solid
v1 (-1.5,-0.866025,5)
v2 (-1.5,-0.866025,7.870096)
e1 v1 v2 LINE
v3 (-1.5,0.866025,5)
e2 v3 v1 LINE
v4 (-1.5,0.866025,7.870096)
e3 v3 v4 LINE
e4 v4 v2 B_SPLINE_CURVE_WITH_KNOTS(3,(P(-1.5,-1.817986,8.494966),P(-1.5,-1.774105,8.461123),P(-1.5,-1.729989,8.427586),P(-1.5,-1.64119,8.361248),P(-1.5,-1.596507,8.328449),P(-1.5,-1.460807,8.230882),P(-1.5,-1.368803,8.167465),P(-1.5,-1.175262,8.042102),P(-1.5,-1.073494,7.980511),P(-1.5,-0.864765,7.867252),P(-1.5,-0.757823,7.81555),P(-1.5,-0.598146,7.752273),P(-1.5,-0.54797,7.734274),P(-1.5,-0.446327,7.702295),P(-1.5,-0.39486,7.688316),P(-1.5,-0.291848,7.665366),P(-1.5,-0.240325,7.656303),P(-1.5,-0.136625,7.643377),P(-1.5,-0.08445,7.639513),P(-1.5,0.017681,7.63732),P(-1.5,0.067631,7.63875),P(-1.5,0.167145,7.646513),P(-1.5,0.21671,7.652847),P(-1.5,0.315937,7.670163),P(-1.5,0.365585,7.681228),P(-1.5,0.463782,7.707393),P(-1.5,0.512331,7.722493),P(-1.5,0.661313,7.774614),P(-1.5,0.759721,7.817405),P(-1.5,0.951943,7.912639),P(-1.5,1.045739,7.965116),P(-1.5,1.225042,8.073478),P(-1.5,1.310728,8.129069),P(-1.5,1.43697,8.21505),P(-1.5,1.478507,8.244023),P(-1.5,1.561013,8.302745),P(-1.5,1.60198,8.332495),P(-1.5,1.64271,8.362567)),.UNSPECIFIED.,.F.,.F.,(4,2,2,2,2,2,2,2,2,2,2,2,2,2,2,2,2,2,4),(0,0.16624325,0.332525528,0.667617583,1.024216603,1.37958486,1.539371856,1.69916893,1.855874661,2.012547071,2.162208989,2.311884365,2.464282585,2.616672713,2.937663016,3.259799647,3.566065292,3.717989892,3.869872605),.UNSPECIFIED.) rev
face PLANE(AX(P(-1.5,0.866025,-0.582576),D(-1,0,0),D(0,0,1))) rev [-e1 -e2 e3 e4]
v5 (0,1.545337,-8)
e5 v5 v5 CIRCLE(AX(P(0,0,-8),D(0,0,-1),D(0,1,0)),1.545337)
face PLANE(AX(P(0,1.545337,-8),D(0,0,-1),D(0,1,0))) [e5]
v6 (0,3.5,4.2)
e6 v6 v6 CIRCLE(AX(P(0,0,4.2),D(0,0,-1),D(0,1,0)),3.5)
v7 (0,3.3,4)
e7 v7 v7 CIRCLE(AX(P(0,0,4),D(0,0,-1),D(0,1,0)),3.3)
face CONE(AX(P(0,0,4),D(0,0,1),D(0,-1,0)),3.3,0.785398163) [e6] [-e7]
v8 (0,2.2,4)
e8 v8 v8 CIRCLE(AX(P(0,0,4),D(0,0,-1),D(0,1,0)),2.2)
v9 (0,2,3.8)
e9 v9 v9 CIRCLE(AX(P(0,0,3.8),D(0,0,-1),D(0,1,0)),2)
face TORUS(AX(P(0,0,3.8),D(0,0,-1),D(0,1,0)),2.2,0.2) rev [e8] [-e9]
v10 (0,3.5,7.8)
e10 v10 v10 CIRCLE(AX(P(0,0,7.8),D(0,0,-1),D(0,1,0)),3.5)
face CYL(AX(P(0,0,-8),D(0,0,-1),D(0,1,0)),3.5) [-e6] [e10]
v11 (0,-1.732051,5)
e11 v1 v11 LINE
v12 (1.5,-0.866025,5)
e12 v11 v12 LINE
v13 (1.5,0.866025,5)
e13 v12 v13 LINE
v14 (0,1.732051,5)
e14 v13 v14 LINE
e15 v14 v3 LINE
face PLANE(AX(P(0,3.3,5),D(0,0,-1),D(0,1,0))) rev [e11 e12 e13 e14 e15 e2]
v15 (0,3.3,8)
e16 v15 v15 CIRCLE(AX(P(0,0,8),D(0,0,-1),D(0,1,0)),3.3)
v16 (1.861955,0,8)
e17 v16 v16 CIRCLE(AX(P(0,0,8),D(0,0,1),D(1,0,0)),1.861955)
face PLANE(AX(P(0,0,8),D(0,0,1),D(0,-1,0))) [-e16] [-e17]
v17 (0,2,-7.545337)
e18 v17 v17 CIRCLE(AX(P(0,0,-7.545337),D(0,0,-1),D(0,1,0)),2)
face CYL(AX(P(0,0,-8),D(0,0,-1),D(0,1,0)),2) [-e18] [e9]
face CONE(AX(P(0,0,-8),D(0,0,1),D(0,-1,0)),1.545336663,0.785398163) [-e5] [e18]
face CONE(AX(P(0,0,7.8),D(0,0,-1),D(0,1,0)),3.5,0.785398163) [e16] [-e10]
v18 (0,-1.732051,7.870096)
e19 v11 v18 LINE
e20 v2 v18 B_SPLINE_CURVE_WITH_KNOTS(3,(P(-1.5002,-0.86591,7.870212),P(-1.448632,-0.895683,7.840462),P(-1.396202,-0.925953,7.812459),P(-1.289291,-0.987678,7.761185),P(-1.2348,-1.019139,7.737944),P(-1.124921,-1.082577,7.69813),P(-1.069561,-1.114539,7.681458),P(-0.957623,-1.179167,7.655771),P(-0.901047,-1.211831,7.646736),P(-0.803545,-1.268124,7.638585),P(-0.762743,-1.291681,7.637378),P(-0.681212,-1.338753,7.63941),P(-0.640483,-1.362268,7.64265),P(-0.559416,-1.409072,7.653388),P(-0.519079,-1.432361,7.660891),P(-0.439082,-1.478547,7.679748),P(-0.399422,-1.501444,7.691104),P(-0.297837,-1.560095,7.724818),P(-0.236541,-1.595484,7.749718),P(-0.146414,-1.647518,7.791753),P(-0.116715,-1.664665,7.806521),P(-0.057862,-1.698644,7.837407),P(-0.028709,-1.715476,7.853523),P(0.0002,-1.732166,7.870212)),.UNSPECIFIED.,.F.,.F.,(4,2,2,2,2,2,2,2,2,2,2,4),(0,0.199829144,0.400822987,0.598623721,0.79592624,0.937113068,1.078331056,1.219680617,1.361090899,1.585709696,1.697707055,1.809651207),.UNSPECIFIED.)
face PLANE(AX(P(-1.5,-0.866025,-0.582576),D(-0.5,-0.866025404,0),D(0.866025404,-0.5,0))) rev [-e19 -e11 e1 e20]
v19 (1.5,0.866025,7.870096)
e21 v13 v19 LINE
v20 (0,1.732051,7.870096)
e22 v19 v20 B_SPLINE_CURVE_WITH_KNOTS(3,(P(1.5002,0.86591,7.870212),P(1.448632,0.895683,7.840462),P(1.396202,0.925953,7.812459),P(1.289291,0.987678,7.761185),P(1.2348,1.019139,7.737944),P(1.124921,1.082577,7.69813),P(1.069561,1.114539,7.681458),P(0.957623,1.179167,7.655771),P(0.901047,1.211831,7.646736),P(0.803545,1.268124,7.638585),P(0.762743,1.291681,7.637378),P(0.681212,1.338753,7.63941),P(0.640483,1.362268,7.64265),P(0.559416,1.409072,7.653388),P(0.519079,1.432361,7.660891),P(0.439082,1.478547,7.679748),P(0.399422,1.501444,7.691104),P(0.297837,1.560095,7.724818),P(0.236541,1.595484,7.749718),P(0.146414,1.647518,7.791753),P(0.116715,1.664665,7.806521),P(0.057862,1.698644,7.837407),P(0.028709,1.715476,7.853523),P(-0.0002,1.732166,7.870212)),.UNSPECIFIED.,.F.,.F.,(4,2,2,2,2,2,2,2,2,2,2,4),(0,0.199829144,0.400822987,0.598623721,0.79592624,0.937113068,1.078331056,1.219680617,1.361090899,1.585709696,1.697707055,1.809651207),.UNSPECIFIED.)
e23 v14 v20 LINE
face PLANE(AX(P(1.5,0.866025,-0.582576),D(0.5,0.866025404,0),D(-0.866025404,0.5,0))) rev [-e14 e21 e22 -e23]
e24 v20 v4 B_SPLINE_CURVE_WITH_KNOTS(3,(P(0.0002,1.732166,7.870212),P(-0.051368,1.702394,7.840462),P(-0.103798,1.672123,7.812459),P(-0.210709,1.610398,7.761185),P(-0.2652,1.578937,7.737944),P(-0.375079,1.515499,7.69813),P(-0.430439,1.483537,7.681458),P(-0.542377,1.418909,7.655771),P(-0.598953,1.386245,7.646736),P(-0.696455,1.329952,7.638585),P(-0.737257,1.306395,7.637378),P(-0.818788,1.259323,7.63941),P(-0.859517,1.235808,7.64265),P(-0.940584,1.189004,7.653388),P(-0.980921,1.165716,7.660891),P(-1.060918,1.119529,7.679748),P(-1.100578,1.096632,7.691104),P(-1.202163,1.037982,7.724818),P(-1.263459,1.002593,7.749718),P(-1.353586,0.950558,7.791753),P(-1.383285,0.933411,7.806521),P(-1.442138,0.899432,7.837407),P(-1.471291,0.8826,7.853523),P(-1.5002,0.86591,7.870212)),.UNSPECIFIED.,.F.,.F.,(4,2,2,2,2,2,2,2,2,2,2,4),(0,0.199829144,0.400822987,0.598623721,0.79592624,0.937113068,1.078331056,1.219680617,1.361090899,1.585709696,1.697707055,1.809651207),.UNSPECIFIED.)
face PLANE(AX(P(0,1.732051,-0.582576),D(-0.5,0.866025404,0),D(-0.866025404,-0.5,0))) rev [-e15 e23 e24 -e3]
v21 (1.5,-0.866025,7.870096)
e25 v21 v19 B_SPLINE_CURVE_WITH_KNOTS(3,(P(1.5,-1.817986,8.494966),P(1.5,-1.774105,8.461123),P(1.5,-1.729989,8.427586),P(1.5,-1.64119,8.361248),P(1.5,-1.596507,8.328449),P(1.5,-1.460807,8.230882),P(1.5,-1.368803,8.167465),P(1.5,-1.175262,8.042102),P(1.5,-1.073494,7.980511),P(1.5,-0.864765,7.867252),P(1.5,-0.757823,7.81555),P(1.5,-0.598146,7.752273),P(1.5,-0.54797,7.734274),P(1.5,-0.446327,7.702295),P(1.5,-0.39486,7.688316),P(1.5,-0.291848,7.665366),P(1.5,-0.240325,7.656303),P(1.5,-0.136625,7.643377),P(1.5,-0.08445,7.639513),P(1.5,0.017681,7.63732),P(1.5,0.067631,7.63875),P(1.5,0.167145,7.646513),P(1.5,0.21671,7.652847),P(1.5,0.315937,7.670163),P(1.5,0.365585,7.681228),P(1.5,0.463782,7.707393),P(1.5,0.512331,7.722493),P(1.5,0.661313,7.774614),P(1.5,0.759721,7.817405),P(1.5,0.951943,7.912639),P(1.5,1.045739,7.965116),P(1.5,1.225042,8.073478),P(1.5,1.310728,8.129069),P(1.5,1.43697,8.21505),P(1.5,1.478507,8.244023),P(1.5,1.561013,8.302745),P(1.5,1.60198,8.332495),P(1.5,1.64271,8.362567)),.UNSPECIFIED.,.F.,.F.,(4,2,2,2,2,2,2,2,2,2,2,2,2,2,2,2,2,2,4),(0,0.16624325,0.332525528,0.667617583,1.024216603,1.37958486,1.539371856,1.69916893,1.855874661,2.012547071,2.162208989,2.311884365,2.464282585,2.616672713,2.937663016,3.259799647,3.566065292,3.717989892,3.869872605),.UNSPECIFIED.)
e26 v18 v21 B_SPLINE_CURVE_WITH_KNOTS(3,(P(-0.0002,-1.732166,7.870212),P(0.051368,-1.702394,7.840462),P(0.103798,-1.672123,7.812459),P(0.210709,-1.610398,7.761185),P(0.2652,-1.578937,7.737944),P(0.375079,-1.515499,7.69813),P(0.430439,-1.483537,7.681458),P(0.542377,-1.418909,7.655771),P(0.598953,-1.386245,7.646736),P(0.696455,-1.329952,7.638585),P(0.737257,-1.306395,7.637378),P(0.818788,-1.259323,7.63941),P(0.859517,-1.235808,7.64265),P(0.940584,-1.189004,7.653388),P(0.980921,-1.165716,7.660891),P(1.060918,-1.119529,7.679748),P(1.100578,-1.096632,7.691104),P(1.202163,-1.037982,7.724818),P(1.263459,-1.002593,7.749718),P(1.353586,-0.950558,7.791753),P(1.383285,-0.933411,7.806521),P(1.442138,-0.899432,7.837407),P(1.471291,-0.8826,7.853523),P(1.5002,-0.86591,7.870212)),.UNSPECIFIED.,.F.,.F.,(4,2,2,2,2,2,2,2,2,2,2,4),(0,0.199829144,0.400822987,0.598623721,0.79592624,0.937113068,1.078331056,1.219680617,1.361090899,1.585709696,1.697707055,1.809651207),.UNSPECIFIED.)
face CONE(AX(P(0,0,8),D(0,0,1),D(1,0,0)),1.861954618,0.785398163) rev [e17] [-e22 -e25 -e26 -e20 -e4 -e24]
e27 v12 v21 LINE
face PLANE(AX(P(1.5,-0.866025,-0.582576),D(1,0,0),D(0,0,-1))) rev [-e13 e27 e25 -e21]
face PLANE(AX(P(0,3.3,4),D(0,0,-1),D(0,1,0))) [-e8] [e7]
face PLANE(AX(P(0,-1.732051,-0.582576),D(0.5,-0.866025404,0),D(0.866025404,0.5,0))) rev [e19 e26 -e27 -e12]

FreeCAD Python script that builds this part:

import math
import FreeCAD as App
import Part
import Sketcher
from FreeCAD import Vector
Q = App.Units.Quantity


def faces_at(feature, points):
    """Names of the faces that lie closest to the given points."""
    faces = feature.Shape.Faces
    near = lambda p: min(range(len(faces)), key=lambda i: faces[i].distToShape(Part.Vertex(*p))[0])
    return sorted({f"Face{near(p) + 1}" for p in points})


def add_polygon(sketch, points):
    """Adds a closed chain of lines whose ends are joined by coincident constraints."""
    first, n = sketch.GeometryCount, len(points)
    for a, b in zip(points, points[1:] + points[:1]):
        sketch.addGeometry(Part.LineSegment(App.Vector(*a, 0), App.Vector(*b, 0)), False)
    for i in range(n):
        sketch.addConstraint(Sketcher.Constraint("Coincident", first + i, 2, first + (i + 1) % n, 1))

doc = App.newDocument("Part")
body = doc.addObject("PartDesign::Body", "Body")

# Sketch on YZ plane
sketch1 = body.newObject("Sketcher::SketchObject", "Sketch")
sketch1.AttachmentSupport = (doc.getObject("YZ_Plane"), [""])
sketch1.MapMode = "FlatFace"
sketch1.addGeometry([
    Part.LineSegment(Vector(3.3, 8, 0), Vector(0, 8, 0)),  # 0
    Part.LineSegment(Vector(0, 8, 0), Vector(0, -8, 0)),  # 1
    Part.LineSegment(Vector(0, -8, 0), Vector(1.55, -8, 0)),  # 2
    Part.LineSegment(Vector(1.55, -8, 0), Vector(2, -7.55, 0)),  # 3
    Part.LineSegment(Vector(2, -7.55, 0), Vector(2, 3.8, 0)),  # 4
    Part.ArcOfCircle(Part.Circle(Vector(2.2, 3.8, 0), Vector(0, 0, 1), 0.2), math.radians(90), math.radians(180)),  # 5
    Part.LineSegment(Vector(2.2, 4, 0), Vector(3.3, 4, 0)),  # 6
    Part.LineSegment(Vector(3.3, 4, 0), Vector(3.5, 4.2, 0)),  # 7
    Part.LineSegment(Vector(3.5, 4.2, 0), Vector(3.5, 7.8, 0)),  # 8
    Part.LineSegment(Vector(3.5, 7.8, 0), Vector(3.3, 8, 0)),  # 9
], False)
sketch1.addConstraint([
    Sketcher.Constraint("Coincident", 0, 2, 1, 1),
    Sketcher.Constraint("Coincident", 1, 2, 2, 1),
    Sketcher.Constraint("Coincident", 2, 2, 3, 1),
    Sketcher.Constraint("Coincident", 3, 2, 4, 1),
    Sketcher.Constraint("Tangent", 4, 2, 5, 2),
    Sketcher.Constraint("Tangent", 5, 1, 6, 1),
    Sketcher.Constraint("Coincident", 6, 2, 7, 1),
    Sketcher.Constraint("Coincident", 7, 2, 8, 1),
    Sketcher.Constraint("Coincident", 8, 2, 9, 1),
    Sketcher.Constraint("Coincident", 9, 2, 0, 1),
    Sketcher.Constraint("Horizontal", 0),
    Sketcher.Constraint("Vertical", 1),
    Sketcher.Constraint("Horizontal", 2),
    Sketcher.Constraint("Vertical", 4),
    Sketcher.Constraint("Horizontal", 6),
    Sketcher.Constraint("Vertical", 8),
    Sketcher.Constraint("Symmetric", 0, 2, 1, 2, -1, 1),
    Sketcher.Constraint("Parallel", 3, 7),
    Sketcher.Constraint("Perpendicular", 7, 9),
    Sketcher.Constraint("Vertical", 6, 2, 9, 2),
    Sketcher.Constraint("Equal", 7, 9),
    Sketcher.Constraint("Radius", 5, Q("0.2 mm")),
    Sketcher.Constraint("DistanceY", 1, 2, 1, 1, Q("16 mm")),
    Sketcher.Constraint("DistanceX", 0, 2, 0, 1, Q("3.3 mm")),
    Sketcher.Constraint("DistanceX", 6, 1, 6, 2, Q("1.1 mm")),
    Sketcher.Constraint("DistanceY", 8, 1, 8, 2, Q("3.6 mm")),
    Sketcher.Constraint("DistanceY", -1, 1, 5, 1, Q("4 mm")),
    Sketcher.Constraint("Distance", 3, Q("0.642991 mm")),
])
revolution = body.newObject("PartDesign::Revolution", "Revolution")
revolution.Profile = sketch1
revolution.ReferenceAxis = (sketch1, ["V_Axis"])
revolution.Angle = 360

# Sketch on XY plane
sketch2 = body.newObject("Sketcher::SketchObject", "Sketch001")
sketch2.AttachmentSupport = (doc.getObject("XY_Plane"), [""])
sketch2.MapMode = "FlatFace"
sketch2.AttachmentOffset = App.Placement(Vector(0, 0, 8), App.Rotation())
add_polygon(sketch2, [(1.5, -0.9), (1.5, 0.9), (0, 1.7), (-1.5, 0.9), (-1.5, -0.9), (0, -1.7)])  # lines 0-5
sketch2.addConstraint([
    Sketcher.Constraint("Vertical", 0),
    Sketcher.Constraint("Vertical", 3),
    Sketcher.Constraint("Symmetric", 0, 2, 3, 2, -1, 1),
    Sketcher.Constraint("Symmetric", 1, 2, 4, 2, -1, 1),
    Sketcher.Constraint("PointOnObject", 1, 2, -2),
    Sketcher.Constraint("Parallel", 2, 5),
    Sketcher.Constraint("Horizontal", 0, 2, 2, 2),
    Sketcher.Constraint("Angle", 1, Q("150 deg")),
    Sketcher.Constraint("DistanceX", 2, 2, 0, 2, Q("3 mm")),
    Sketcher.Constraint("DistanceY", 0, 1, 0, 2, Q("1.732051 mm")),
])
pocket1 = body.newObject("PartDesign::Pocket", "Pocket")
pocket1.Profile = sketch2
pocket1.Length = 3
body2 = doc.addObject("PartDesign::Body", "Body001")

# Sketch on XY plane
sketch3 = body2.newObject("Sketcher::SketchObject", "Sketch002")
sketch3.AttachmentSupport = (doc.getObject("XY_Plane001"), [""])
sketch3.MapMode = "FlatFace"
sketch3.AttachmentOffset = App.Placement(Vector(0, 0, 8), App.Rotation())
sketch3.addGeometry(Part.Circle(Vector(0, 0, 0), Vector(0, 0, 1), 1.9), False)
sketch3.addConstraint([
    Sketcher.Constraint("Coincident", 0, 3, -1, 1),
    Sketcher.Constraint("Diameter", 0, Q("3.723909 mm")),
])
pad1 = body2.newObject("PartDesign::Pad", "Pad")
pad1.Profile = sketch3
pad1.Length = 3
pad1.Reversed = True
doc.recompute()

datumplane = body2.newObject("PartDesign::Plane", "DatumPlane")
datumplane.AttachmentSupport = (doc.getObject("XY_Plane001"), [""])
datumplane.MapMode = "FlatFace"
datumplane.AttachmentOffset = App.Placement(Vector(0, 0, 8), App.Rotation())
draft = body2.newObject("PartDesign::Draft", "Draft")
draft.Base = (pad1, faces_at(pad1, [(-1.862, 0, 6.5)]))
draft.NeutralPlane = (datumplane, [""])
draft.Angle = 45
draft.Reversed = True
doc.recompute()

boolean = body.newObject("PartDesign::Boolean", "Boolean")
boolean.Type = "Cut"
boolean.addObjects([body2])

doc.recompute()
